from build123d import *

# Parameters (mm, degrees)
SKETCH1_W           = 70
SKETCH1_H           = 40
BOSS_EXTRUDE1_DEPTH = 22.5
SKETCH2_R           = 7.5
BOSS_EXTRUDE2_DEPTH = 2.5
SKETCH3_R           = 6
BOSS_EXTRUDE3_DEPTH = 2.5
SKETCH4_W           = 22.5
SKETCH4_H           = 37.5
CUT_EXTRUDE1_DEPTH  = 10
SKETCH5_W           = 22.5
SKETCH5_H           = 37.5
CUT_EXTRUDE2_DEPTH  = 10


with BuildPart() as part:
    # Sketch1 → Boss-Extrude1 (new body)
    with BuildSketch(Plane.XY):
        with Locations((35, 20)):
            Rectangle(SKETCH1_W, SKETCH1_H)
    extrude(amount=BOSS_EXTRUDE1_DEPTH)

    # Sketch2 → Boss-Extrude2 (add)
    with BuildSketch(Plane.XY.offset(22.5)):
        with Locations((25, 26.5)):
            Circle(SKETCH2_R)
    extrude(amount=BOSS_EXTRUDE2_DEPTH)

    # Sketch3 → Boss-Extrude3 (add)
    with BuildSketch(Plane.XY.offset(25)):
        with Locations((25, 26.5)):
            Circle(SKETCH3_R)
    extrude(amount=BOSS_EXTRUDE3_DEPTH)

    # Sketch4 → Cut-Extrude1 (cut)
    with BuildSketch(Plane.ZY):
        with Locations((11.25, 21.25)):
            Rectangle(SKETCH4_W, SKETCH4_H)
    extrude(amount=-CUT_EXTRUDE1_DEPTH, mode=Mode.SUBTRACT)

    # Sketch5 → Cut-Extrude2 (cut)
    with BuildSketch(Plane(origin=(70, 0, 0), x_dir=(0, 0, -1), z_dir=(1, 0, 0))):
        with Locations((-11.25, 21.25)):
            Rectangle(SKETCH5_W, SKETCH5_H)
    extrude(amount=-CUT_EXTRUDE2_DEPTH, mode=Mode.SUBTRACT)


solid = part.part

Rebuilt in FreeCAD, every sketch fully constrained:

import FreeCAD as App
import Part
import Sketcher
Q = App.Units.Quantity


def add_polygon(sketch, points):
    """Adds a closed chain of lines whose ends are joined by coincident constraints."""
    first, n = sketch.GeometryCount, len(points)
    for a, b in zip(points, points[1:] + points[:1]):
        sketch.addGeometry(Part.LineSegment(App.Vector(*a, 0), App.Vector(*b, 0)), False)
    for i in range(n):
        sketch.addConstraint(Sketcher.Constraint("Coincident", first + i, 2, first + (i + 1) % n, 1))

doc = App.newDocument("Part")
body = doc.addObject("PartDesign::Body", "Body")

# Sketch on XY plane
sketch1 = doc.addObject("Sketcher::SketchObject", "Sketch")
body.addObject(sketch1)
sketch1.AttachmentSupport = (doc.XY_Plane, [""])
sketch1.MapMode = "FlatFace"
add_polygon(sketch1, [(0, 40), (0, 0), (70, 0), (70, 40)])  # lines 0-3
sketch1.addConstraint([
    Sketcher.Constraint("Vertical", 0),
    Sketcher.Constraint("Horizontal", 1),
    Sketcher.Constraint("Vertical", 2),
    Sketcher.Constraint("Horizontal", 3),
    Sketcher.Constraint("Coincident", 0, 2, -1, 1),
    Sketcher.Constraint("DistanceX", 1, 1, 1, 2, Q("70 mm")),
    Sketcher.Constraint("DistanceY", 0, 2, 0, 1, Q("40 mm")),
])
pad1 = doc.addObject("PartDesign::Pad", "Pad")
body.addObject(pad1)
pad1.Profile = sketch1
pad1.Length = 22.5

# Sketch on XY plane
sketch2 = doc.addObject("Sketcher::SketchObject", "Sketch001")
body.addObject(sketch2)
sketch2.AttachmentSupport = (doc.XY_Plane, [""])
sketch2.MapMode = "FlatFace"
sketch2.AttachmentOffset = App.Placement(App.Vector(0, 0, 22.5), App.Rotation())
sketch2.addGeometry(Part.Circle(App.Vector(25, 26.5, 0), App.Vector(0, 0, 1), 7.5), False)
sketch2.addConstraint([
    Sketcher.Constraint("Diameter", 0, Q("15 mm")),
    Sketcher.Constraint("DistanceX", -1, 1, 0, 3, Q("25 mm")),
    Sketcher.Constraint("DistanceY", -1, 1, 0, 3, Q("26.5 mm")),
])
pad2 = doc.addObject("PartDesign::Pad", "Pad001")
body.addObject(pad2)
pad2.Profile = sketch2
pad2.Length = 2.5

# Sketch on XY plane
sketch3 = doc.addObject("Sketcher::SketchObject", "Sketch002")
body.addObject(sketch3)
sketch3.AttachmentSupport = (doc.XY_Plane, [""])
sketch3.MapMode = "FlatFace"
sketch3.AttachmentOffset = App.Placement(App.Vector(0, 0, 25), App.Rotation())
sketch3.addGeometry(Part.Circle(App.Vector(25, 26.5, 0), App.Vector(0, 0, 1), 6), False)
sketch3.addConstraint([
    Sketcher.Constraint("Diameter", 0, Q("12 mm")),
    Sketcher.Constraint("DistanceX", -1, 1, 0, 3, Q("25 mm")),
    Sketcher.Constraint("DistanceY", -1, 1, 0, 3, Q("26.5 mm")),
])
pad3 = doc.addObject("PartDesign::Pad", "Pad002")
body.addObject(pad3)
pad3.Profile = sketch3
pad3.Length = 2.5

# Sketch on YZ plane
sketch4 = doc.addObject("Sketcher::SketchObject", "Sketch003")
body.addObject(sketch4)
sketch4.AttachmentSupport = (doc.YZ_Plane, [""])
sketch4.MapMode = "FlatFace"
add_polygon(sketch4, [(40, 0), (2.5, 0), (2.5, 22.5), (40, 22.5)])  # lines 0-3
sketch4.addConstraint([
    Sketcher.Constraint("Horizontal", 0),
    Sketcher.Constraint("Vertical", 1),
    Sketcher.Constraint("Horizontal", 2),
    Sketcher.Constraint("Vertical", 3),
    Sketcher.Constraint("PointOnObject", 0, 2, -1),
    Sketcher.Constraint("DistanceX", 0, 2, 0, 1, Q("37.5 mm")),
    Sketcher.Constraint("DistanceY", 1, 1, 1, 2, Q("22.5 mm")),
    Sketcher.Constraint("DistanceX", -1, 1, 2, 2, Q("40 mm")),
])
pocket1 = doc.addObject("PartDesign::Pocket", "Pocket")
body.addObject(pocket1)
pocket1.Profile = sketch4
pocket1.Length = 10
pocket1.Reversed = True

# Sketch on YZ plane
sketch5 = doc.addObject("Sketcher::SketchObject", "Sketch004")
body.addObject(sketch5)
sketch5.AttachmentSupport = (doc.YZ_Plane, [""])
sketch5.MapMode = "FlatFace"
sketch5.AttachmentOffset = App.Placement(App.Vector(0, 0, 70), App.Rotation())
add_polygon(sketch5, [(40, 22.5), (2.5, 22.5), (2.5, 0), (40, 0)])  # lines 0-3
sketch5.addConstraint([
    Sketcher.Constraint("Horizontal", 0),
    Sketcher.Constraint("Vertical", 1),
    Sketcher.Constraint("Horizontal", 2),
    Sketcher.Constraint("Vertical", 3),
    Sketcher.Constraint("PointOnObject", 1, 2, -1),
    Sketcher.Constraint("DistanceX", 0, 2, 0, 1, Q("37.5 mm")),
    Sketcher.Constraint("DistanceY", 1, 2, 1, 1, Q("22.5 mm")),
    Sketcher.Constraint("DistanceX", -1, 1, 2, 2, Q("40 mm")),
])
pocket2 = doc.addObject("PartDesign::Pocket", "Pocket001")
body.addObject(pocket2)
pocket2.Profile = sketch5
pocket2.Length = 10

doc.recompute()
